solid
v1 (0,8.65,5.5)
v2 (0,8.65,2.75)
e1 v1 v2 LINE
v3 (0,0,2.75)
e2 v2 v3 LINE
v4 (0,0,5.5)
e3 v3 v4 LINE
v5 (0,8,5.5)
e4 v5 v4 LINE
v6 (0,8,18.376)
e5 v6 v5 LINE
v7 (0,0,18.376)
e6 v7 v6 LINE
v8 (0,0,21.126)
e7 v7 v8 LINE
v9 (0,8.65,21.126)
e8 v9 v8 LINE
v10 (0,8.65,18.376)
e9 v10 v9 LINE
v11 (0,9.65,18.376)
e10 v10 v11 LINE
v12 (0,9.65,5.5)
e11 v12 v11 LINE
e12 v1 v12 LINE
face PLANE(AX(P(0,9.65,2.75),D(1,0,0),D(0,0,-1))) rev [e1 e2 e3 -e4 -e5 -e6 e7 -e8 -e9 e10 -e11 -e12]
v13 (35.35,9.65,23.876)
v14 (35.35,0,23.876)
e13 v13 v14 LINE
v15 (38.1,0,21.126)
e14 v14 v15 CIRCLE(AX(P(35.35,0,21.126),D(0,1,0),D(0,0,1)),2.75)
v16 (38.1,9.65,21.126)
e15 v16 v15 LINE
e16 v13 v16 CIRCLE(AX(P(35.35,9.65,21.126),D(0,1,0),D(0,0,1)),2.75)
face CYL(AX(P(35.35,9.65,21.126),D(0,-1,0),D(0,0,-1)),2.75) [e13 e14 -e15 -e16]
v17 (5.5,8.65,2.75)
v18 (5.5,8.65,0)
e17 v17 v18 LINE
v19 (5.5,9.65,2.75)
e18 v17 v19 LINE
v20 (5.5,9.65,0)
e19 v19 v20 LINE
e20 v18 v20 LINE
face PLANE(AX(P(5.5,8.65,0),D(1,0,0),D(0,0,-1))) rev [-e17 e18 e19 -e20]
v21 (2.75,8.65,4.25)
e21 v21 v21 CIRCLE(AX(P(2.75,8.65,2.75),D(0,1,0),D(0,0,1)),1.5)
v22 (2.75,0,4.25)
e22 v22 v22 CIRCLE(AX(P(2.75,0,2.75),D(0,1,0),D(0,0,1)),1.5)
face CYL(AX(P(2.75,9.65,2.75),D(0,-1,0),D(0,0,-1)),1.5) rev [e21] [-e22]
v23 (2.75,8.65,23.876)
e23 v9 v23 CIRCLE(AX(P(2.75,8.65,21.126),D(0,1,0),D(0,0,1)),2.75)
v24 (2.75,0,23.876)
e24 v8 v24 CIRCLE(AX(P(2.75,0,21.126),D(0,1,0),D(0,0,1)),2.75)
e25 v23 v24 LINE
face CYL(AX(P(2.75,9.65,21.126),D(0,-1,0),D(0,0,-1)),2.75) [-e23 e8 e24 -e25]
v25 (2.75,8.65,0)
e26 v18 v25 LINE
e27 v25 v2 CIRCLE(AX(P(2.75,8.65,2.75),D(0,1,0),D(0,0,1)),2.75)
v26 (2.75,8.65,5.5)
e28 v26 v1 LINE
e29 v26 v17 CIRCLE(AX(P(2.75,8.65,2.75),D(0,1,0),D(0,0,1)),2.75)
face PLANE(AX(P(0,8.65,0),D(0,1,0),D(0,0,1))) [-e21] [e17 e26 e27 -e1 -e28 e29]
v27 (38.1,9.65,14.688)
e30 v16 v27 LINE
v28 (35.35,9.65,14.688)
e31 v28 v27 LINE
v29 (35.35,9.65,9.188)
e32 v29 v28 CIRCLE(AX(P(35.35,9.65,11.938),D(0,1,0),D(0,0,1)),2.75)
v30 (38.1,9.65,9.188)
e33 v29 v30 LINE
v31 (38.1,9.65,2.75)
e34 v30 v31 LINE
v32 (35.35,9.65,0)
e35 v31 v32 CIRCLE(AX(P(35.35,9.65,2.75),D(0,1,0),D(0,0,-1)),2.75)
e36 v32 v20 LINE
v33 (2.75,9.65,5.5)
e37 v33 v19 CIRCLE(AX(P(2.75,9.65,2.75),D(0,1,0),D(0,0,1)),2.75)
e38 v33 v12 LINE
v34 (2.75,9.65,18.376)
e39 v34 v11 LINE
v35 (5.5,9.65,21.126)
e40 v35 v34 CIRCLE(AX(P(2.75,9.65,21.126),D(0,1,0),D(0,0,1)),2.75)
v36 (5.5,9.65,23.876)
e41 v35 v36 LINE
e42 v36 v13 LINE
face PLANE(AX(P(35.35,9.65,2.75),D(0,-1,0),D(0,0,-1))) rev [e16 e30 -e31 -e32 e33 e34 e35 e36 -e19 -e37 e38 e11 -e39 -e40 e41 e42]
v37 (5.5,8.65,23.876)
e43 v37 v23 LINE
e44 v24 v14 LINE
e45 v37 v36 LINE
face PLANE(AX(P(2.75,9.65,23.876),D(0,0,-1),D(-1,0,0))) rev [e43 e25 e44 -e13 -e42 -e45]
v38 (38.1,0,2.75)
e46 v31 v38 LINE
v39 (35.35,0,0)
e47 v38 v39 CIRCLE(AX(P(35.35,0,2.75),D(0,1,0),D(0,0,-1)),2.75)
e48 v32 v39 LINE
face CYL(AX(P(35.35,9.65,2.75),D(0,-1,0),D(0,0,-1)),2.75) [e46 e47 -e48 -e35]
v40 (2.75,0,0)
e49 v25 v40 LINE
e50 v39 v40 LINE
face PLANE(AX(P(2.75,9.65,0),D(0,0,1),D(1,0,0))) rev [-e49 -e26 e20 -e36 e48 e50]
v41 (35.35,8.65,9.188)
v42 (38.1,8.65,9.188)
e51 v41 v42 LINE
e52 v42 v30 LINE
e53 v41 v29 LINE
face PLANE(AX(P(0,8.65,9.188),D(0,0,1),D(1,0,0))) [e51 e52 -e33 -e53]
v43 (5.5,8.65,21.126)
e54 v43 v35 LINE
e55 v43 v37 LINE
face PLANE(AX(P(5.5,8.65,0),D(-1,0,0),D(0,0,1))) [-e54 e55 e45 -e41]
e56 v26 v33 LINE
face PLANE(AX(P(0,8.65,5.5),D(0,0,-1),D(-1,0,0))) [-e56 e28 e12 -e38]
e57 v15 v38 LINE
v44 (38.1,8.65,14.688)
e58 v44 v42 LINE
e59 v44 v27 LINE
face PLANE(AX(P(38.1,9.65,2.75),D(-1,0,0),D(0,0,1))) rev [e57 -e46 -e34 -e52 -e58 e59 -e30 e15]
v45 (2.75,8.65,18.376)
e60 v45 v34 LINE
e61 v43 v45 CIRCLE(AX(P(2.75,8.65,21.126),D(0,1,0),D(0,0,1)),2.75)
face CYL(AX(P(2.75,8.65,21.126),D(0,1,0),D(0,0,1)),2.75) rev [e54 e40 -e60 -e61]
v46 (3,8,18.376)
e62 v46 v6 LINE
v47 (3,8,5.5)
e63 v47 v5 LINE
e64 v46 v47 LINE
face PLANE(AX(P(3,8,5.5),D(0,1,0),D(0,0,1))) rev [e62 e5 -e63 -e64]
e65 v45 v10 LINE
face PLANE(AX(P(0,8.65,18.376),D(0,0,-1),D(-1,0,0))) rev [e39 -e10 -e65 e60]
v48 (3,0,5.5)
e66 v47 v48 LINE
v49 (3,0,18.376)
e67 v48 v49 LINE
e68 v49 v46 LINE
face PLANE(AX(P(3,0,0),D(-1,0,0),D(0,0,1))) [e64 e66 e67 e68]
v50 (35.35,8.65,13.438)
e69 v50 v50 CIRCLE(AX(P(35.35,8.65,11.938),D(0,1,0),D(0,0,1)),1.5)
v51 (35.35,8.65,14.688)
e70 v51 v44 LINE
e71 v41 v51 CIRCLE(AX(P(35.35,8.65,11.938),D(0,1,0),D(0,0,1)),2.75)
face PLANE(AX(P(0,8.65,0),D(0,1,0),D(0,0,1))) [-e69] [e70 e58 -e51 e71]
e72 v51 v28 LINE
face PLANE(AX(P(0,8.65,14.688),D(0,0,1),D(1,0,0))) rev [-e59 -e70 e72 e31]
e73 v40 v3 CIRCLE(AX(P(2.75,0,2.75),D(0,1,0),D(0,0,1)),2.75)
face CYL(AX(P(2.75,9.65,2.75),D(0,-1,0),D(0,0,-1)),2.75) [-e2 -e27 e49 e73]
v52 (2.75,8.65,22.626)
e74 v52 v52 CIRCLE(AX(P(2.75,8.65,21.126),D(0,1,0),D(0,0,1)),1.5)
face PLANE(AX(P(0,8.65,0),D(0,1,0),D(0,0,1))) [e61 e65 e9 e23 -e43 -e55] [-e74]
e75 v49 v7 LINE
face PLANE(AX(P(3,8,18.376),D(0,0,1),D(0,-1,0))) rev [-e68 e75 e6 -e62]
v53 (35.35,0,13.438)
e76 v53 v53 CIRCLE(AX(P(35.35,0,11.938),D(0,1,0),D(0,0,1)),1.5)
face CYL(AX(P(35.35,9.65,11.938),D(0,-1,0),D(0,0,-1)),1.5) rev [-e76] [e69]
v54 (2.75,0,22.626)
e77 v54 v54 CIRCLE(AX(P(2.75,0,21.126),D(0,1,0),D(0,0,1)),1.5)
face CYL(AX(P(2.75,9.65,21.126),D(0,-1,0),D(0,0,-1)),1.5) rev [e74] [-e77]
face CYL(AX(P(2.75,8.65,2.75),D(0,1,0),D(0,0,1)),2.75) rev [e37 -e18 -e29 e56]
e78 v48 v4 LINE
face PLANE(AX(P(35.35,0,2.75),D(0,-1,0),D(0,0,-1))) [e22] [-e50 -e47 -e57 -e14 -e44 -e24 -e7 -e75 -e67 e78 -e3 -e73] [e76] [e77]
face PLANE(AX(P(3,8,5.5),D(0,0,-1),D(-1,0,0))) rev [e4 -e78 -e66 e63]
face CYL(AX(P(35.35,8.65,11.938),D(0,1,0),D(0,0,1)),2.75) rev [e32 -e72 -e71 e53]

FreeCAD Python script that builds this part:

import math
import FreeCAD as App
import Part
import Sketcher


def add_polygon(sketch, points):
    """Adds a closed chain of lines whose ends are joined by coincident constraints."""
    first, n = sketch.GeometryCount, len(points)
    for a, b in zip(points, points[1:] + points[:1]):
        sketch.addGeometry(Part.LineSegment(App.Vector(*a, 0), App.Vector(*b, 0)), False)
    for i in range(n):
        sketch.addConstraint(Sketcher.Constraint("Coincident", first + i, 2, first + (i + 1) % n, 1))

doc = App.newDocument("Part")
params = doc.addObject("Spreadsheet::Sheet", "Params")
for row, (alias, value) in enumerate([
    ("sketch1_diameter", "3 mm"),
    ("sketch1_radius", "2.75 mm"),
    ("sketch1_width", "32.6 mm"),
    ("pad1_length", "9.65 mm"),
    ("sketch2_radius", "2.75 mm"),
    ("pocket1_length", "1 mm"),
    ("sketch3_width", "8 mm"),
    ("pocket2_length", "3 mm"),
], start=1):
    params.set(f"A{row}", alias)
    params.set(f"B{row}", "=" + value)
    params.setAlias(f"B{row}", alias)

body = doc.addObject("PartDesign::Body", "Body")

sketch1 = body.newObject("Sketcher::SketchObject", "Sketch")
sketch1.AttachmentSupport = (doc.getObject("XZ_Plane"), [""])
sketch1.MapMode = "FlatFace"
sketch1.addGeometry([
    Part.LineSegment(App.Vector(35.4, 0, 0), App.Vector(2.8, 0, 0)),
    Part.ArcOfCircle(Part.Circle(App.Vector(2.8, 2.8, 0), App.Vector(0, 0, 1), 2.8), math.radians(-180), math.radians(-90)),
    Part.LineSegment(App.Vector(0, 2.8, 0), App.Vector(0, 21.1, 0)),
    Part.ArcOfCircle(Part.Circle(App.Vector(2.8, 21.1, 0), App.Vector(0, 0, 1), 2.8), math.radians(90), math.radians(180)),
    Part.LineSegment(App.Vector(2.8, 23.9, 0), App.Vector(35.4, 23.9, 0)),
    Part.ArcOfCircle(Part.Circle(App.Vector(35.3, 21.1, 0), App.Vector(0, 0, 1), 2.8), math.radians(0), math.radians(90)),
    Part.LineSegment(App.Vector(38.1, 21.1, 0), App.Vector(38.1, 2.8, 0)),
    Part.ArcOfCircle(Part.Circle(App.Vector(35.3, 2.8, 0), App.Vector(0, 0, 1), 2.8), math.radians(-90), math.radians(0)),
    Part.Circle(App.Vector(35.4, 11.9, 0), App.Vector(0, 0, 1), 1.5),
    Part.Circle(App.Vector(2.8, 21.1, 0), App.Vector(0, 0, 1), 1.5),
    Part.Circle(App.Vector(2.8, 2.8, 0), App.Vector(0, 0, 1), 1.5),
], False)
sketch1.addConstraint([
    Sketcher.Constraint("Tangent", 0, 2, 1, 2),
    Sketcher.Constraint("Tangent", 1, 1, 2, 1),
    Sketcher.Constraint("Tangent", 2, 2, 3, 2),
    Sketcher.Constraint("Tangent", 3, 1, 4, 1),
    Sketcher.Constraint("Tangent", 4, 2, 5, 2),
    Sketcher.Constraint("Tangent", 5, 1, 6, 1),
    Sketcher.Constraint("Tangent", 6, 2, 7, 2),
    Sketcher.Constraint("Tangent", 7, 1, 0, 1),
    Sketcher.Constraint("Horizontal", 0),
    Sketcher.Constraint("Vertical", 2),
    Sketcher.Constraint("Horizontal", 4),
    Sketcher.Constraint("Vertical", 6),
    Sketcher.Constraint("Coincident", 9, 3, 3, 3),
    Sketcher.Constraint("Coincident", 10, 3, 1, 3),
    Sketcher.Constraint("Equal", 1, 3),
    Sketcher.Constraint("Equal", 3, 5),
    Sketcher.Constraint("Equal", 5, 7),
    Sketcher.Constraint("Equal", 8, 9),
    Sketcher.Constraint("Equal", 9, 10),
    Sketcher.Constraint("PointOnObject", 0, 2, -1),
    Sketcher.Constraint("PointOnObject", 1, 1, -2),
    Sketcher.Constraint("Vertical", 7, 3, 8, 3),
    Sketcher.Constraint("Diameter", 8, 3.0),
    Sketcher.Constraint("Radius", 1, 2.75),
    Sketcher.Constraint("DistanceX", 0, 2, 0, 1, 32.6),
    Sketcher.Constraint("DistanceY", 2, 1, 2, 2, 18.376),
    Sketcher.Constraint("DistanceY", -1, 1, 8, 3, 11.938),
])
sketch1.setExpression("Constraints[22]", "Params.sketch1_diameter")
sketch1.setExpression("Constraints[23]", "Params.sketch1_radius")
sketch1.setExpression("Constraints[24]", "Params.sketch1_width")
pad1 = body.newObject("PartDesign::Pad", "Pad")
pad1.Profile = sketch1
pad1.setExpression("Length", "Params.pad1_length")
pad1.Reversed = True

sketch2 = body.newObject("Sketcher::SketchObject", "Sketch001")
sketch2.AttachmentSupport = (doc.getObject("XZ_Plane"), [""])
sketch2.MapMode = "FlatFace"
sketch2.AttachmentOffset = App.Placement(App.Vector(0, 0, -8.65), App.Rotation())
sketch2.addGeometry([
    Part.LineSegment(App.Vector(2.8, 18.4, 0), App.Vector(0, 18.4, 0)),
    Part.LineSegment(App.Vector(0, 18.4, 0), App.Vector(0, 23.9, 0)),
    Part.LineSegment(App.Vector(0, 23.9, 0), App.Vector(5.5, 23.9, 0)),
    Part.LineSegment(App.Vector(5.5, 23.9, 0), App.Vector(5.5, 21.1, 0)),
    Part.ArcOfCircle(Part.Circle(App.Vector(2.7, 21.1, 0), App.Vector(0, 0, 1), 2.8), math.radians(-90), math.radians(0)),
    Part.ArcOfCircle(Part.Circle(App.Vector(2.7, 2.7, 0), App.Vector(0, 0, 1), 2.8), math.radians(0), math.radians(90)),
    Part.LineSegment(App.Vector(5.5, 2.8, 0), App.Vector(5.5, 0, 0)),
    Part.LineSegment(App.Vector(5.5, 0, 0), App.Vector(0, 0, 0)),
    Part.LineSegment(App.Vector(0, 0, 0), App.Vector(0, 5.5, 0)),
    Part.LineSegment(App.Vector(0, 5.5, 0), App.Vector(2.8, 5.5, 0)),
    Part.LineSegment(App.Vector(38.1, 9.2, 0), App.Vector(35.4, 9.2, 0)),
    Part.ArcOfCircle(Part.Circle(App.Vector(35.4, 11.9, 0), App.Vector(0, 0, 1), 2.8), math.radians(90), math.radians(270)),
    Part.LineSegment(App.Vector(35.4, 14.7, 0), App.Vector(38.1, 14.7, 0)),
    Part.LineSegment(App.Vector(38.1, 14.7, 0), App.Vector(38.1, 9.2, 0)),
], False)
sketch2.addConstraint([
    Sketcher.Constraint("Coincident", 0, 2, 1, 1),
    Sketcher.Constraint("Coincident", 1, 2, 2, 1),
    Sketcher.Constraint("Coincident", 2, 2, 3, 1),
    Sketcher.Constraint("Tangent", 3, 2, 4, 2),
    Sketcher.Constraint("Tangent", 4, 1, 0, 1),
    Sketcher.Constraint("Tangent", 5, 1, 6, 1),
    Sketcher.Constraint("Coincident", 6, 2, 7, 1),
    Sketcher.Constraint("Coincident", 7, 2, 8, 1),
    Sketcher.Constraint("Coincident", 8, 2, 9, 1),
    Sketcher.Constraint("Tangent", 9, 2, 5, 2),
    Sketcher.Constraint("Tangent", 10, 2, 11, 2),
    Sketcher.Constraint("Tangent", 11, 1, 12, 1),
    Sketcher.Constraint("Coincident", 12, 2, 13, 1),
    Sketcher.Constraint("Coincident", 13, 2, 10, 1),
    Sketcher.Constraint("Horizontal", 0),
    Sketcher.Constraint("Vertical", 1),
    Sketcher.Constraint("Horizontal", 2),
    Sketcher.Constraint("Vertical", 3),
    Sketcher.Constraint("Vertical", 6),
    Sketcher.Constraint("Horizontal", 7),
    Sketcher.Constraint("Vertical", 8),
    Sketcher.Constraint("Horizontal", 9),
    Sketcher.Constraint("Horizontal", 10),
    Sketcher.Constraint("Horizontal", 12),
    Sketcher.Constraint("Vertical", 13),
    Sketcher.Constraint("Coincident", 7, 2, -1, 1),
    Sketcher.Constraint("Equal", 4, 5),
    Sketcher.Constraint("Equal", 5, 11),
    Sketcher.Constraint("PointOnObject", 0, 2, -2),
    Sketcher.Constraint("Vertical", 4, 3, 5, 3),
    Sketcher.Constraint("Equal", 9, 10),
    Sketcher.Constraint("Equal", 7, 1),
    Sketcher.Constraint("Equal", 3, 6),
    Sketcher.Constraint("Equal", 8, 13),
    Sketcher.Constraint("Radius", 4, 2.75),
    Sketcher.Constraint("DistanceX", -1, 1, 12, 2, 38.1),
    Sketcher.Constraint("DistanceY", -1, 1, 4, 3, 21.126),
    Sketcher.Constraint("DistanceY", -1, 1, 11, 3, 11.938),
])
sketch2.setExpression("Constraints[34]", "Params.sketch2_radius")
pocket1 = body.newObject("PartDesign::Pocket", "Pocket")
pocket1.Profile = sketch2
pocket1.setExpression("Length", "Params.pocket1_length")

sketch3 = body.newObject("Sketcher::SketchObject", "Sketch002")
sketch3.AttachmentSupport = (doc.getObject("YZ_Plane"), [""])
sketch3.MapMode = "FlatFace"
add_polygon(sketch3, [(8, 6), (0, 6), (0, 18), (8, 18)])
sketch3.addConstraint([
    Sketcher.Constraint("Horizontal", 0),
    Sketcher.Constraint("Vertical", 1),
    Sketcher.Constraint("Horizontal", 2),
    Sketcher.Constraint("Vertical", 3),
    Sketcher.Constraint("PointOnObject", 0, 2, -2),
    Sketcher.Constraint("DistanceX", 0, 2, 0, 1, 8.0),
    Sketcher.Constraint("DistanceY", -1, 1, 0, 2, 5.5),
    Sketcher.Constraint("DistanceY", 1, 1, 1, 2, 12.876),
])
sketch3.setExpression("Constraints[9]", "Params.sketch3_width")
pocket2 = body.newObject("PartDesign::Pocket", "Pocket001")
pocket2.Profile = sketch3
pocket2.setExpression("Length", "Params.pocket2_length")
pocket2.Reversed = True

doc.recompute()
